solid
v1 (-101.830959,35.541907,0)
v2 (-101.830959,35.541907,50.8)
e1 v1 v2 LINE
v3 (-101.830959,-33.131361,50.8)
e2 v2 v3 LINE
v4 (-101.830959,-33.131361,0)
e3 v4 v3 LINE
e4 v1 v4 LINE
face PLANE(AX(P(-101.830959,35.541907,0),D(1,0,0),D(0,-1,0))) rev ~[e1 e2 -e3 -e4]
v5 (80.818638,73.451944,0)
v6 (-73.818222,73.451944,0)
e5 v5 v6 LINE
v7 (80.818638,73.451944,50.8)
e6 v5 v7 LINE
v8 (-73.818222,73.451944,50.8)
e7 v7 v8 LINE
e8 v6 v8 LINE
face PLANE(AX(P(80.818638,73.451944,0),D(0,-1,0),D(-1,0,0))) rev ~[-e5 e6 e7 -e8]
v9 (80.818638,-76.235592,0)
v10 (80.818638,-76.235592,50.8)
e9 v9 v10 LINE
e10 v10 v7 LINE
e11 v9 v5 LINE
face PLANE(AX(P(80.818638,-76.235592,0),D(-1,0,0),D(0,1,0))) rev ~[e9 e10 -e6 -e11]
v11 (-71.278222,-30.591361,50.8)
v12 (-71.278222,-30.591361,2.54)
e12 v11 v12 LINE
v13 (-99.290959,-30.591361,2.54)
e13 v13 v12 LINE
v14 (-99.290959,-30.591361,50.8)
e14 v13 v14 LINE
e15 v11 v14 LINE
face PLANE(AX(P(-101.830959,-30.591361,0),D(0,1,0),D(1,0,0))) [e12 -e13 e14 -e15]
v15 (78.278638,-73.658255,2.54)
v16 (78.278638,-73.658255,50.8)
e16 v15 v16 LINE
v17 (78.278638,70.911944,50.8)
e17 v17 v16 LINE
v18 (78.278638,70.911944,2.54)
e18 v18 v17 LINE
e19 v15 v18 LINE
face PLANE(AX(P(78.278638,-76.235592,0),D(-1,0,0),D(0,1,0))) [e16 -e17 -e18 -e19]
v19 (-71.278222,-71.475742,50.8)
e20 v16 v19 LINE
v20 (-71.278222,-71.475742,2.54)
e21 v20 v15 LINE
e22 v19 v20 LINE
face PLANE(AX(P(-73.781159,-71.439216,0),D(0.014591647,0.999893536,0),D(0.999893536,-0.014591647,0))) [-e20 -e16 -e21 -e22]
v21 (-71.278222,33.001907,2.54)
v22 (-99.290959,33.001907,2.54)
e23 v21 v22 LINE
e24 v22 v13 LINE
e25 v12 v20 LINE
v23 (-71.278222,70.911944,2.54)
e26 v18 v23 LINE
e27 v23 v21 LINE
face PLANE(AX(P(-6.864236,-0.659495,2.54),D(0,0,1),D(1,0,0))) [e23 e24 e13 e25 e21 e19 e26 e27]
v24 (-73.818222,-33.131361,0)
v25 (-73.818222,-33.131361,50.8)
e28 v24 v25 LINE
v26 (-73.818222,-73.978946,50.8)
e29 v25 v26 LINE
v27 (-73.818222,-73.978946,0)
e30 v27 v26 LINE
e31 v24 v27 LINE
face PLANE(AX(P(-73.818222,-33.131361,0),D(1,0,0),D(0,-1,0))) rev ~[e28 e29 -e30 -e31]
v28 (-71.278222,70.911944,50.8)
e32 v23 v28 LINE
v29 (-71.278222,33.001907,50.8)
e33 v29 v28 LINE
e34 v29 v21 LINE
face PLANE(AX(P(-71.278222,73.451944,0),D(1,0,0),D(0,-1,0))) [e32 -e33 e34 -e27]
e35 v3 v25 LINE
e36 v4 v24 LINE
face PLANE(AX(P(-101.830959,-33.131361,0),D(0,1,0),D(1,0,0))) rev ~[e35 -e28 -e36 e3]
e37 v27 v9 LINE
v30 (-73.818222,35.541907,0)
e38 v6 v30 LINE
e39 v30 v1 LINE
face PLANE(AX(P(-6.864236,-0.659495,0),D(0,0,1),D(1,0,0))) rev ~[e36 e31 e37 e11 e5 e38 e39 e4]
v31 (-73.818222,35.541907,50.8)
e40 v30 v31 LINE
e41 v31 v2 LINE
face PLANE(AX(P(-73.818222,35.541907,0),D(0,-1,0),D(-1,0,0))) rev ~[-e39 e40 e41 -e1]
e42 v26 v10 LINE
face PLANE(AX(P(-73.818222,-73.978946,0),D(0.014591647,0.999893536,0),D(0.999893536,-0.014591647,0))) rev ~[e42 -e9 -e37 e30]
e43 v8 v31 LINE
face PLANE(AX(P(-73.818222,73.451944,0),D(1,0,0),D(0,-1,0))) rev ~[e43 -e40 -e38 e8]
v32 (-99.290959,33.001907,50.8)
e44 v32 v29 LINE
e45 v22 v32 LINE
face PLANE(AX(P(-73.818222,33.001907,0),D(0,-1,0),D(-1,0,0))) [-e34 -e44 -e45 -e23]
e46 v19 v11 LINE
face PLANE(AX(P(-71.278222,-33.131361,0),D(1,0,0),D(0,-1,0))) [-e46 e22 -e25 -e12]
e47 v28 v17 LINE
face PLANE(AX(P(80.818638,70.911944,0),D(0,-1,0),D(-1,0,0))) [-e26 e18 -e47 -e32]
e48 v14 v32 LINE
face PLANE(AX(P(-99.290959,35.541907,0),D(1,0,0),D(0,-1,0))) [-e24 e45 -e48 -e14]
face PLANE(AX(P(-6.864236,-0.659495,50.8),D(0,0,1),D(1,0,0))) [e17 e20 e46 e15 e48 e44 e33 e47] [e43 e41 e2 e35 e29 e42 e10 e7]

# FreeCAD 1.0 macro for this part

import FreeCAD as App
import Part
import Sketcher

V = App.Vector
Q = App.Units.Quantity


def faces_at(feature, points):
    """Names of the faces that lie closest to the given points."""
    faces = feature.Shape.Faces
    near = lambda p: min(range(len(faces)), key=lambda i: faces[i].distToShape(Part.Vertex(*p))[0])
    return sorted({f"Face{near(p) + 1}" for p in points})

doc = App.newDocument("Part")
body = doc.addObject("PartDesign::Body", "Body")

sketch1 = body.newObject("Sketcher::SketchObject", "Sketch")
sketch1.AttachmentSupport = (doc.getObject("XY_Plane"), [""])
sketch1.MapMode = "FlatFace"
sketch1.addGeometry(Part.LineSegment(V(-73.818222, -73.978946, 0), V(80.818638, -76.235592, 0)), False)
sketch1.addGeometry(Part.LineSegment(V(80.818638, -76.235592, 0), V(80.818638, 73.451944, 0)), False)
sketch1.addGeometry(Part.LineSegment(V(80.818638, 73.451944, 0), V(-73.818222, 73.451944, 0)), False)
sketch1.addGeometry(Part.LineSegment(V(-73.818222, 73.451944, 0), V(-73.818222, 35.541907, 0)), False)
sketch1.addGeometry(Part.LineSegment(V(-73.818222, 35.541907, 0), V(-101.830959, 35.541907, 0)), False)
sketch1.addGeometry(Part.LineSegment(V(-101.830959, 35.541907, 0), V(-101.830959, -33.131361, 0)), False)
sketch1.addGeometry(Part.LineSegment(V(-101.830959, -33.131361, 0), V(-73.818222, -33.131361, 0)), False)
sketch1.addGeometry(Part.LineSegment(V(-73.818222, -33.131361, 0), V(-73.818222, -73.978946, 0)), False)
sketch1.addConstraint(Sketcher.Constraint("Coincident", 0, 2, 1, 1))
sketch1.addConstraint(Sketcher.Constraint("Coincident", 1, 2, 2, 1))
sketch1.addConstraint(Sketcher.Constraint("Coincident", 2, 2, 3, 1))
sketch1.addConstraint(Sketcher.Constraint("Coincident", 3, 2, 4, 1))
sketch1.addConstraint(Sketcher.Constraint("Coincident", 4, 2, 5, 1))
sketch1.addConstraint(Sketcher.Constraint("Coincident", 5, 2, 6, 1))
sketch1.addConstraint(Sketcher.Constraint("Coincident", 6, 2, 7, 1))
sketch1.addConstraint(Sketcher.Constraint("Coincident", 7, 2, 0, 1))
sketch1.addConstraint(Sketcher.Constraint("Vertical", 1))
sketch1.addConstraint(Sketcher.Constraint("Horizontal", 2))
sketch1.addConstraint(Sketcher.Constraint("Vertical", 3))
sketch1.addConstraint(Sketcher.Constraint("Horizontal", 4))
sketch1.addConstraint(Sketcher.Constraint("Vertical", 5))
sketch1.addConstraint(Sketcher.Constraint("Horizontal", 6))
sketch1.addConstraint(Sketcher.Constraint("Vertical", 7))
sketch1.addConstraint(Sketcher.Constraint("Vertical", 3, 2, 6, 2))
sketch1.addConstraint(Sketcher.Constraint("DistanceX", 2, 2, 2, 1, 154.63686))
sketch1.addConstraint(Sketcher.Constraint("DistanceY", 0, 2, 3, 2, 111.777499))
sketch1.addConstraint(Sketcher.Constraint("DistanceX", 4, 2, 4, 1, 28.012738))
sketch1.addConstraint(Sketcher.Constraint("DistanceY", 1, 1, 1, 2, 149.687536))
sketch1.addConstraint(Sketcher.Constraint("DistanceY", 5, 2, 5, 1, 68.673268))
sketch1.addConstraint(Sketcher.Constraint("DistanceY", 7, 2, 7, 1, 40.847585))
sketch1.addConstraint(Sketcher.Constraint("DistanceX", -1, 1, 0, 2, 80.818638))
sketch1.addConstraint(Sketcher.Constraint("DistanceY", 5, 2, -1, 1, 33.131361))
pad1 = body.newObject("PartDesign::Pad", "Pad")
pad1.Profile = sketch1
pad1.Length = Q("2 in")
doc.recompute()

thickness = body.newObject("PartDesign::Thickness", "Thickness")
thickness.Base = (pad1, faces_at(pad1, [(-10.506, -1.392, 50.8)]))
thickness.Value = Q("0.1 in")
thickness.Reversed = True
thickness.Join = "Intersection"

doc.recompute()
